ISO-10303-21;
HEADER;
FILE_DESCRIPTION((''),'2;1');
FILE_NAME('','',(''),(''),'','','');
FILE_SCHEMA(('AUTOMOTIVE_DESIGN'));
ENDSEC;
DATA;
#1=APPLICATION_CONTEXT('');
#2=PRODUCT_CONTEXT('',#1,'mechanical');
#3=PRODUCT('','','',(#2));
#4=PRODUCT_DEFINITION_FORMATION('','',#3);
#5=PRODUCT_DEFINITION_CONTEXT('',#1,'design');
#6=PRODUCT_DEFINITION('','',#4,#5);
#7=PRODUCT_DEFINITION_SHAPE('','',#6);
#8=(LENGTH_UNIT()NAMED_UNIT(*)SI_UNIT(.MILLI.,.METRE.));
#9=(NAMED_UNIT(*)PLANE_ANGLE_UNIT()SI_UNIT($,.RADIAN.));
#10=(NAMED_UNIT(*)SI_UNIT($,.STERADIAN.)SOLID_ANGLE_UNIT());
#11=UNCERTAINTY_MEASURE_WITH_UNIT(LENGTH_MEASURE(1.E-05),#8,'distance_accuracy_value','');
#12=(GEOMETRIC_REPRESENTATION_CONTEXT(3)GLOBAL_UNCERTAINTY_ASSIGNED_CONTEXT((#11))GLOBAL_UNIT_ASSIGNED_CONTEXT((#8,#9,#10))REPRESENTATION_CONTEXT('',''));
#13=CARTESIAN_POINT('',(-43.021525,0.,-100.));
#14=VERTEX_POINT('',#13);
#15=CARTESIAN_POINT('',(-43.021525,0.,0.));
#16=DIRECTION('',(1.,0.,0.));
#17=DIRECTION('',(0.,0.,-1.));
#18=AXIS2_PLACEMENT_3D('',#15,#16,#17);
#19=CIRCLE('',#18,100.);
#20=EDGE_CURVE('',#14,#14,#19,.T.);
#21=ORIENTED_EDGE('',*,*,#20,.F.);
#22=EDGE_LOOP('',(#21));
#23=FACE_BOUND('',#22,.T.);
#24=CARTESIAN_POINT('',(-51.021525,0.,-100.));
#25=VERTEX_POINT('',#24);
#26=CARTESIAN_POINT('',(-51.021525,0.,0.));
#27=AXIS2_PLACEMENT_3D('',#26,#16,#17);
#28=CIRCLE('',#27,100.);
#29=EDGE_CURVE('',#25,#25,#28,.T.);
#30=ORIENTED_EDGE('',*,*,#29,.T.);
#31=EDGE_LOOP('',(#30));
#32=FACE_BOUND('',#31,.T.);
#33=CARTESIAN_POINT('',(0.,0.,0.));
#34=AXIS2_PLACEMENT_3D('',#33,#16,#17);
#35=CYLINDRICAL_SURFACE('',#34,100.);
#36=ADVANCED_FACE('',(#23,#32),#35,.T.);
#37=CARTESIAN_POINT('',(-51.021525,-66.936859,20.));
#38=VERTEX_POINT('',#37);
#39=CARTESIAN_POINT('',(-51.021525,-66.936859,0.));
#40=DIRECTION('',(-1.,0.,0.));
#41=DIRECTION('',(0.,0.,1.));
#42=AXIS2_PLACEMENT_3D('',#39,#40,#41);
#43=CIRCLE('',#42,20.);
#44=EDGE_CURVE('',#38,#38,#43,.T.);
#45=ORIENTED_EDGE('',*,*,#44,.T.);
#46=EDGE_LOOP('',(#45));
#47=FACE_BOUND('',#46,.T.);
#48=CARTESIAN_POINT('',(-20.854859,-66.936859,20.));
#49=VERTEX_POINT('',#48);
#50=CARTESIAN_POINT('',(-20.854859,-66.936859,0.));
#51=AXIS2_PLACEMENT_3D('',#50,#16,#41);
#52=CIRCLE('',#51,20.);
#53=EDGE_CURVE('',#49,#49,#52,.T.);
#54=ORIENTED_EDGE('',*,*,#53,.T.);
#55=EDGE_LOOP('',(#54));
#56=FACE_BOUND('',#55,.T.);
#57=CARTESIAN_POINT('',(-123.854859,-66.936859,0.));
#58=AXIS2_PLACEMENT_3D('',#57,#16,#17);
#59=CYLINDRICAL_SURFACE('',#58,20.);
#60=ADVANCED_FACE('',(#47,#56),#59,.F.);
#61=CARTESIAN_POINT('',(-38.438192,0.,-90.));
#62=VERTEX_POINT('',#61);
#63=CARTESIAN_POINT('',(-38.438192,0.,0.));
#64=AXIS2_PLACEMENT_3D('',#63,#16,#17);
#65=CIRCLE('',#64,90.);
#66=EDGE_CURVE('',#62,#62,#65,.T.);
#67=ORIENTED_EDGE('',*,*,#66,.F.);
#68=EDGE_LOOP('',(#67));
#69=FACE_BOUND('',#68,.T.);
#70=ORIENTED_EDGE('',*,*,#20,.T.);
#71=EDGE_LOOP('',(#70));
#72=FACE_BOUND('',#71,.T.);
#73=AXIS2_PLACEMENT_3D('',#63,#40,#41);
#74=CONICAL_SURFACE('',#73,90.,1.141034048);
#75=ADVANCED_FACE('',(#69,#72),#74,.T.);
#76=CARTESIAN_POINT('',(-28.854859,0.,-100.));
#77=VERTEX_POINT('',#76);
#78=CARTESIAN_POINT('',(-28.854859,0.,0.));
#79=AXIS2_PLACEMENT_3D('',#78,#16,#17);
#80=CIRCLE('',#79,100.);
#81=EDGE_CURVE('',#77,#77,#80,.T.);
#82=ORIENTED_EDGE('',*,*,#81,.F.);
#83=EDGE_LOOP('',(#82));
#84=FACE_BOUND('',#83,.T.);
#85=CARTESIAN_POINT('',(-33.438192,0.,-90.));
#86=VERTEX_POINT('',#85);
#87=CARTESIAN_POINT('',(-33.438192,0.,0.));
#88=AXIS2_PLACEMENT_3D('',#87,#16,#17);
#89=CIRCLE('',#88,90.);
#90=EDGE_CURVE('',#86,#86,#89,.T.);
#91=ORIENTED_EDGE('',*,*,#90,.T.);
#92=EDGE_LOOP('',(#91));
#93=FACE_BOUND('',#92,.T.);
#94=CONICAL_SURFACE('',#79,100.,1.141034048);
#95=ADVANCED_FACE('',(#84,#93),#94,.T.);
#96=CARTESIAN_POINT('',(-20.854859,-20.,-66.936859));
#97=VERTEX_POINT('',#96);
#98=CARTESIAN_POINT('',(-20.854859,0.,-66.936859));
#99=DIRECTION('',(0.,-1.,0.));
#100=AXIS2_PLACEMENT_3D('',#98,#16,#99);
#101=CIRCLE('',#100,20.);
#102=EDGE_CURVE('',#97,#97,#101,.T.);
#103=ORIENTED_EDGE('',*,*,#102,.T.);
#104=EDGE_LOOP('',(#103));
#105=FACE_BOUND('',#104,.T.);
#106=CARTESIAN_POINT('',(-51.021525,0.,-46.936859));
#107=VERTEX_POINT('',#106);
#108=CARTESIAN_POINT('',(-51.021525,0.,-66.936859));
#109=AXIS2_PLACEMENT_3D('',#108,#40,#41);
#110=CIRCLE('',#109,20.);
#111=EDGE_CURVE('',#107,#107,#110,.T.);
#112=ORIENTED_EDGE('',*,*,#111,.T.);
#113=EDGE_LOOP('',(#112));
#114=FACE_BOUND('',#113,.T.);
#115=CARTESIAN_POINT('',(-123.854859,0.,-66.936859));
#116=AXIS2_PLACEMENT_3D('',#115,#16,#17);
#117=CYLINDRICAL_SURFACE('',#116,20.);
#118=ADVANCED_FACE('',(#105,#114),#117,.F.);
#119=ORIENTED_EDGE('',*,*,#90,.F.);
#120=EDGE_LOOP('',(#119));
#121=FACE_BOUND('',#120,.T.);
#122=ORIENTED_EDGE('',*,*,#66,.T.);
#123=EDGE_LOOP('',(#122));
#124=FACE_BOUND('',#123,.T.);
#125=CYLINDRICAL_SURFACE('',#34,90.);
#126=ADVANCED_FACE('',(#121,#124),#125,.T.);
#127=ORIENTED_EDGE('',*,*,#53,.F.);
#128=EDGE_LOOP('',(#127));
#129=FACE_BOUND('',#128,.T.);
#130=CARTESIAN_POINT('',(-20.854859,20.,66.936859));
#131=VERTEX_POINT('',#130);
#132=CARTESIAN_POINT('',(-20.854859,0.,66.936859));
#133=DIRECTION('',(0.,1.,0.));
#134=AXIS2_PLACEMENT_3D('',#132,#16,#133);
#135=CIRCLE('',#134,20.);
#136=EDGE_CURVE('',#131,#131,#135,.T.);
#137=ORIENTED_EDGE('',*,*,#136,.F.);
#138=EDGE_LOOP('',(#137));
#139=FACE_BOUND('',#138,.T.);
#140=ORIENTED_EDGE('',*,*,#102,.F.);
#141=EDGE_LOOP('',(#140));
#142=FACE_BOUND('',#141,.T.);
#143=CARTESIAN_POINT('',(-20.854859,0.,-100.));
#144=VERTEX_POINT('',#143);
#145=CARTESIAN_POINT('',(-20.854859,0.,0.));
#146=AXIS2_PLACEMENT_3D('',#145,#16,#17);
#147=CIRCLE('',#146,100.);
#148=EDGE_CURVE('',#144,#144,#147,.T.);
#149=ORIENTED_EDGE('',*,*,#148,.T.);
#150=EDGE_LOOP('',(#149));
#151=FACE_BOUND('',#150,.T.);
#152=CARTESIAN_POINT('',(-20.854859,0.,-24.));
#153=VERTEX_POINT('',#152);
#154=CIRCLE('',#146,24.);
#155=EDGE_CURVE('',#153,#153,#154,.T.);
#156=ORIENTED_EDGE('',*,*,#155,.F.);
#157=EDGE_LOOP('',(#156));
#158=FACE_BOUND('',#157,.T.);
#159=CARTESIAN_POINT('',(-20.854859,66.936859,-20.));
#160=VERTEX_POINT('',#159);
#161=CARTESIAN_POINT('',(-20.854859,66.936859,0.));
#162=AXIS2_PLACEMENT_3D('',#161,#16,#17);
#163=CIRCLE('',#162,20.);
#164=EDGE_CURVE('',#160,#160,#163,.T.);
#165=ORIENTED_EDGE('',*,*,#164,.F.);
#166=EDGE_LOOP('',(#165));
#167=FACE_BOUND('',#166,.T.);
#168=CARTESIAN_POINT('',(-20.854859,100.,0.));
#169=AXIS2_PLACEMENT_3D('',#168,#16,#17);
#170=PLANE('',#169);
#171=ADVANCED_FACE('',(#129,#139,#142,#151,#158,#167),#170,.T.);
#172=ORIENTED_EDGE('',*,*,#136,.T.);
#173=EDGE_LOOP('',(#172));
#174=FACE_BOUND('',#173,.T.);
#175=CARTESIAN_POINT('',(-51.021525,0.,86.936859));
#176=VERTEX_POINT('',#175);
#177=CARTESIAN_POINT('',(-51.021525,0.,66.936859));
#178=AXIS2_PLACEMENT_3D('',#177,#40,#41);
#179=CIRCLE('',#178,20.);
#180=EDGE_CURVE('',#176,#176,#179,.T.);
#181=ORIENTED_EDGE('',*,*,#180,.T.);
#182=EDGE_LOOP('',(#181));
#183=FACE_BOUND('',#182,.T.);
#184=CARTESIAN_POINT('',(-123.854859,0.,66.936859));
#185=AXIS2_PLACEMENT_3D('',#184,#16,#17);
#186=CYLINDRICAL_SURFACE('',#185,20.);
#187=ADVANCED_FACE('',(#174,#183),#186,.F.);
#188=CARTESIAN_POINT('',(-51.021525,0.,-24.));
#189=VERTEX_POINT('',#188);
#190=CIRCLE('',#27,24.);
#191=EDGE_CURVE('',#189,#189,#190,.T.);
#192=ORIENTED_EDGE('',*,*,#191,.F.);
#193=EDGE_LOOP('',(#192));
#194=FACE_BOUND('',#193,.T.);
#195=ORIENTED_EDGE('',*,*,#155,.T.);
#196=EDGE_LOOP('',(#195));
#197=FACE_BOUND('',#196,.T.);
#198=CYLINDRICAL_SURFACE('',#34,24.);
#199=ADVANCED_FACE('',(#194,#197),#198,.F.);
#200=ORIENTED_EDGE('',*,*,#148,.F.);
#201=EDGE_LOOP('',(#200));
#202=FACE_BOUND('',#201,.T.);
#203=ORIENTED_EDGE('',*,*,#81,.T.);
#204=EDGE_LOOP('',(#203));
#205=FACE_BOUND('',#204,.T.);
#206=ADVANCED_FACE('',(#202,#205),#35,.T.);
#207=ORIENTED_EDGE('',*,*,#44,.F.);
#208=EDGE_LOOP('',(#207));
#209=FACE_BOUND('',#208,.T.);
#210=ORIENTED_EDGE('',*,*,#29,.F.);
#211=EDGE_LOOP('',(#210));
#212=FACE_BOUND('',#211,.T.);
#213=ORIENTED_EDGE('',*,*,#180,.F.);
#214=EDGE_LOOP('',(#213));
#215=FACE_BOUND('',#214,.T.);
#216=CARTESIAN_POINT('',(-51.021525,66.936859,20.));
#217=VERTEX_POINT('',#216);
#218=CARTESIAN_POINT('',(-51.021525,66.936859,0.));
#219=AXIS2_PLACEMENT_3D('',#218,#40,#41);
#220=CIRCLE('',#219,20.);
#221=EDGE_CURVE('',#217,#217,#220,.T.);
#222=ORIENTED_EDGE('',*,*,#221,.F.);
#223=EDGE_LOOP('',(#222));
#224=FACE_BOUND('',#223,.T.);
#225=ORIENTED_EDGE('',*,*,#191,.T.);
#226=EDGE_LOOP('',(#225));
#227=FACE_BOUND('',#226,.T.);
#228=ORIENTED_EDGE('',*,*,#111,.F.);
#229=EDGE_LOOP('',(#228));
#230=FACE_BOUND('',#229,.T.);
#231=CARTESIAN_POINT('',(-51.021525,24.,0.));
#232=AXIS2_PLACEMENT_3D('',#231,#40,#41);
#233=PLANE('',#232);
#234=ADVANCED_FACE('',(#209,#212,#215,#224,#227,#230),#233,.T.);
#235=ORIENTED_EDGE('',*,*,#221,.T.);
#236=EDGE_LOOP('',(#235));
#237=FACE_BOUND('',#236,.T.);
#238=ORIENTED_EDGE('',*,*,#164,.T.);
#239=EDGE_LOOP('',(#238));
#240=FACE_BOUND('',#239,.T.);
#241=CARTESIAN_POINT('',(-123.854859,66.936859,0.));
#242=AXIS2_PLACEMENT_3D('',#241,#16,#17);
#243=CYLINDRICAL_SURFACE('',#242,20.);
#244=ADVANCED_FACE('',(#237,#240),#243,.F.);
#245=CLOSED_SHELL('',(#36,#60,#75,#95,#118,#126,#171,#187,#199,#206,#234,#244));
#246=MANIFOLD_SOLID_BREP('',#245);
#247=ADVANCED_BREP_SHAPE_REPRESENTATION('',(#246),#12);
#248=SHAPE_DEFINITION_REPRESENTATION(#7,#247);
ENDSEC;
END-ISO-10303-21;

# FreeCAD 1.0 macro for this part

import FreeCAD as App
import Part
import Sketcher

V = App.Vector
Q = App.Units.Quantity


def add_polygon(sketch, points):
    """Adds a closed chain of lines whose ends are joined by coincident constraints."""
    first, n = sketch.GeometryCount, len(points)
    for a, b in zip(points, points[1:] + points[:1]):
        sketch.addGeometry(Part.LineSegment(App.Vector(*a, 0), App.Vector(*b, 0)), False)
    for i in range(n):
        sketch.addConstraint(Sketcher.Constraint("Coincident", first + i, 2, first + (i + 1) % n, 1))

doc = App.newDocument("Part")
params = doc.addObject("Spreadsheet::Sheet", "Params")
for row, (alias, value) in enumerate([
    ("sketch1_width", "8 mm"),
    ("sketch1_width2", "5 mm"),
    ("sketch1_height", "76 mm"),
    ("revolution_angle", "360 deg"),
    ("sketch2_diameter", "40 mm"),
    ("pocket1_length", "103 mm"),
], start=1):
    params.set(f"A{row}", alias)
    params.set(f"B{row}", "=" + value)
    params.setAlias(f"B{row}", alias)

body = doc.addObject("PartDesign::Body", "Body")

sketch1 = body.newObject("Sketcher::SketchObject", "Sketch")
sketch1.AttachmentSupport = (doc.getObject("XY_Plane"), [""])
sketch1.MapMode = "FlatFace"
add_polygon(sketch1, [(-51, 24), (-21, 24), (-21, 100), (-29, 100), (-33, 90), (-38, 90), (-43, 100), (-51, 100)])
sketch1.addConstraint([
    Sketcher.Constraint("Horizontal", 0),
    Sketcher.Constraint("Vertical", 1),
    Sketcher.Constraint("Horizontal", 2),
    Sketcher.Constraint("Horizontal", 4),
    Sketcher.Constraint("Horizontal", 6),
    Sketcher.Constraint("Vertical", 7),
    Sketcher.Constraint("Horizontal", 2, 2, 5, 2),
    Sketcher.Constraint("Equal", 2, 6),
    Sketcher.Constraint("Equal", 3, 5),
    Sketcher.Constraint("DistanceX", 2, 2, 2, 1, Q("8 mm")),
    Sketcher.Constraint("DistanceX", 4, 2, 4, 1, Q("5 mm")),
    Sketcher.Constraint("DistanceY", 1, 1, 1, 2, Q("76 mm")),
    Sketcher.Constraint("DistanceY", -1, 1, 0, 2, Q("24 mm")),
    Sketcher.Constraint("DistanceY", -1, 1, 3, 2, Q("90 mm")),
    Sketcher.Constraint("DistanceX", 0, 1, 0, 2, Q("30.166667 mm")),
    Sketcher.Constraint("DistanceX", 0, 2, -1, 1, Q("20.854859 mm")),
])
sketch1.setExpression("Constraints[17]", "Params.sketch1_width")
sketch1.setExpression("Constraints[18]", "Params.sketch1_width2")
sketch1.setExpression("Constraints[19]", "Params.sketch1_height")
revolution = body.newObject("PartDesign::Revolution", "Revolution")
revolution.Profile = sketch1
revolution.ReferenceAxis = (sketch1, ["H_Axis"])
revolution.setExpression("Angle", "Params.revolution_angle")

sketch2 = body.newObject("Sketcher::SketchObject", "Sketch001")
sketch2.AttachmentSupport = (doc.getObject("YZ_Plane"), [""])
sketch2.MapMode = "FlatFace"
sketch2.AttachmentOffset = App.Placement(V(0, 0, -20.854859), App.Rotation())
sketch2.addGeometry(Part.Circle(V(67, 0, 0), V(0, 0, 1), 20), False)
sketch2.addConstraint([
    Sketcher.Constraint("PointOnObject", 0, 3, -1),
    Sketcher.Constraint("Diameter", 0, Q("40 mm")),
    Sketcher.Constraint("DistanceX", -1, 1, 0, 3, Q("66.936859 mm")),
])
sketch2.setExpression("Constraints[1]", "Params.sketch2_diameter")
pocket1 = body.newObject("PartDesign::Pocket", "Pocket")
pocket1.Profile = sketch2
pocket1.setExpression("Length", "Params.pocket1_length")
doc.recompute()

polarpattern = body.newObject("PartDesign::PolarPattern", "PolarPattern")
polarpattern.Originals = [pocket1]
polarpattern.Axis = (doc.getObject("X_Axis"), [""])
polarpattern.Angle = 360
polarpattern.Occurrences = 4
body.Tip = polarpattern

doc.recompute()
